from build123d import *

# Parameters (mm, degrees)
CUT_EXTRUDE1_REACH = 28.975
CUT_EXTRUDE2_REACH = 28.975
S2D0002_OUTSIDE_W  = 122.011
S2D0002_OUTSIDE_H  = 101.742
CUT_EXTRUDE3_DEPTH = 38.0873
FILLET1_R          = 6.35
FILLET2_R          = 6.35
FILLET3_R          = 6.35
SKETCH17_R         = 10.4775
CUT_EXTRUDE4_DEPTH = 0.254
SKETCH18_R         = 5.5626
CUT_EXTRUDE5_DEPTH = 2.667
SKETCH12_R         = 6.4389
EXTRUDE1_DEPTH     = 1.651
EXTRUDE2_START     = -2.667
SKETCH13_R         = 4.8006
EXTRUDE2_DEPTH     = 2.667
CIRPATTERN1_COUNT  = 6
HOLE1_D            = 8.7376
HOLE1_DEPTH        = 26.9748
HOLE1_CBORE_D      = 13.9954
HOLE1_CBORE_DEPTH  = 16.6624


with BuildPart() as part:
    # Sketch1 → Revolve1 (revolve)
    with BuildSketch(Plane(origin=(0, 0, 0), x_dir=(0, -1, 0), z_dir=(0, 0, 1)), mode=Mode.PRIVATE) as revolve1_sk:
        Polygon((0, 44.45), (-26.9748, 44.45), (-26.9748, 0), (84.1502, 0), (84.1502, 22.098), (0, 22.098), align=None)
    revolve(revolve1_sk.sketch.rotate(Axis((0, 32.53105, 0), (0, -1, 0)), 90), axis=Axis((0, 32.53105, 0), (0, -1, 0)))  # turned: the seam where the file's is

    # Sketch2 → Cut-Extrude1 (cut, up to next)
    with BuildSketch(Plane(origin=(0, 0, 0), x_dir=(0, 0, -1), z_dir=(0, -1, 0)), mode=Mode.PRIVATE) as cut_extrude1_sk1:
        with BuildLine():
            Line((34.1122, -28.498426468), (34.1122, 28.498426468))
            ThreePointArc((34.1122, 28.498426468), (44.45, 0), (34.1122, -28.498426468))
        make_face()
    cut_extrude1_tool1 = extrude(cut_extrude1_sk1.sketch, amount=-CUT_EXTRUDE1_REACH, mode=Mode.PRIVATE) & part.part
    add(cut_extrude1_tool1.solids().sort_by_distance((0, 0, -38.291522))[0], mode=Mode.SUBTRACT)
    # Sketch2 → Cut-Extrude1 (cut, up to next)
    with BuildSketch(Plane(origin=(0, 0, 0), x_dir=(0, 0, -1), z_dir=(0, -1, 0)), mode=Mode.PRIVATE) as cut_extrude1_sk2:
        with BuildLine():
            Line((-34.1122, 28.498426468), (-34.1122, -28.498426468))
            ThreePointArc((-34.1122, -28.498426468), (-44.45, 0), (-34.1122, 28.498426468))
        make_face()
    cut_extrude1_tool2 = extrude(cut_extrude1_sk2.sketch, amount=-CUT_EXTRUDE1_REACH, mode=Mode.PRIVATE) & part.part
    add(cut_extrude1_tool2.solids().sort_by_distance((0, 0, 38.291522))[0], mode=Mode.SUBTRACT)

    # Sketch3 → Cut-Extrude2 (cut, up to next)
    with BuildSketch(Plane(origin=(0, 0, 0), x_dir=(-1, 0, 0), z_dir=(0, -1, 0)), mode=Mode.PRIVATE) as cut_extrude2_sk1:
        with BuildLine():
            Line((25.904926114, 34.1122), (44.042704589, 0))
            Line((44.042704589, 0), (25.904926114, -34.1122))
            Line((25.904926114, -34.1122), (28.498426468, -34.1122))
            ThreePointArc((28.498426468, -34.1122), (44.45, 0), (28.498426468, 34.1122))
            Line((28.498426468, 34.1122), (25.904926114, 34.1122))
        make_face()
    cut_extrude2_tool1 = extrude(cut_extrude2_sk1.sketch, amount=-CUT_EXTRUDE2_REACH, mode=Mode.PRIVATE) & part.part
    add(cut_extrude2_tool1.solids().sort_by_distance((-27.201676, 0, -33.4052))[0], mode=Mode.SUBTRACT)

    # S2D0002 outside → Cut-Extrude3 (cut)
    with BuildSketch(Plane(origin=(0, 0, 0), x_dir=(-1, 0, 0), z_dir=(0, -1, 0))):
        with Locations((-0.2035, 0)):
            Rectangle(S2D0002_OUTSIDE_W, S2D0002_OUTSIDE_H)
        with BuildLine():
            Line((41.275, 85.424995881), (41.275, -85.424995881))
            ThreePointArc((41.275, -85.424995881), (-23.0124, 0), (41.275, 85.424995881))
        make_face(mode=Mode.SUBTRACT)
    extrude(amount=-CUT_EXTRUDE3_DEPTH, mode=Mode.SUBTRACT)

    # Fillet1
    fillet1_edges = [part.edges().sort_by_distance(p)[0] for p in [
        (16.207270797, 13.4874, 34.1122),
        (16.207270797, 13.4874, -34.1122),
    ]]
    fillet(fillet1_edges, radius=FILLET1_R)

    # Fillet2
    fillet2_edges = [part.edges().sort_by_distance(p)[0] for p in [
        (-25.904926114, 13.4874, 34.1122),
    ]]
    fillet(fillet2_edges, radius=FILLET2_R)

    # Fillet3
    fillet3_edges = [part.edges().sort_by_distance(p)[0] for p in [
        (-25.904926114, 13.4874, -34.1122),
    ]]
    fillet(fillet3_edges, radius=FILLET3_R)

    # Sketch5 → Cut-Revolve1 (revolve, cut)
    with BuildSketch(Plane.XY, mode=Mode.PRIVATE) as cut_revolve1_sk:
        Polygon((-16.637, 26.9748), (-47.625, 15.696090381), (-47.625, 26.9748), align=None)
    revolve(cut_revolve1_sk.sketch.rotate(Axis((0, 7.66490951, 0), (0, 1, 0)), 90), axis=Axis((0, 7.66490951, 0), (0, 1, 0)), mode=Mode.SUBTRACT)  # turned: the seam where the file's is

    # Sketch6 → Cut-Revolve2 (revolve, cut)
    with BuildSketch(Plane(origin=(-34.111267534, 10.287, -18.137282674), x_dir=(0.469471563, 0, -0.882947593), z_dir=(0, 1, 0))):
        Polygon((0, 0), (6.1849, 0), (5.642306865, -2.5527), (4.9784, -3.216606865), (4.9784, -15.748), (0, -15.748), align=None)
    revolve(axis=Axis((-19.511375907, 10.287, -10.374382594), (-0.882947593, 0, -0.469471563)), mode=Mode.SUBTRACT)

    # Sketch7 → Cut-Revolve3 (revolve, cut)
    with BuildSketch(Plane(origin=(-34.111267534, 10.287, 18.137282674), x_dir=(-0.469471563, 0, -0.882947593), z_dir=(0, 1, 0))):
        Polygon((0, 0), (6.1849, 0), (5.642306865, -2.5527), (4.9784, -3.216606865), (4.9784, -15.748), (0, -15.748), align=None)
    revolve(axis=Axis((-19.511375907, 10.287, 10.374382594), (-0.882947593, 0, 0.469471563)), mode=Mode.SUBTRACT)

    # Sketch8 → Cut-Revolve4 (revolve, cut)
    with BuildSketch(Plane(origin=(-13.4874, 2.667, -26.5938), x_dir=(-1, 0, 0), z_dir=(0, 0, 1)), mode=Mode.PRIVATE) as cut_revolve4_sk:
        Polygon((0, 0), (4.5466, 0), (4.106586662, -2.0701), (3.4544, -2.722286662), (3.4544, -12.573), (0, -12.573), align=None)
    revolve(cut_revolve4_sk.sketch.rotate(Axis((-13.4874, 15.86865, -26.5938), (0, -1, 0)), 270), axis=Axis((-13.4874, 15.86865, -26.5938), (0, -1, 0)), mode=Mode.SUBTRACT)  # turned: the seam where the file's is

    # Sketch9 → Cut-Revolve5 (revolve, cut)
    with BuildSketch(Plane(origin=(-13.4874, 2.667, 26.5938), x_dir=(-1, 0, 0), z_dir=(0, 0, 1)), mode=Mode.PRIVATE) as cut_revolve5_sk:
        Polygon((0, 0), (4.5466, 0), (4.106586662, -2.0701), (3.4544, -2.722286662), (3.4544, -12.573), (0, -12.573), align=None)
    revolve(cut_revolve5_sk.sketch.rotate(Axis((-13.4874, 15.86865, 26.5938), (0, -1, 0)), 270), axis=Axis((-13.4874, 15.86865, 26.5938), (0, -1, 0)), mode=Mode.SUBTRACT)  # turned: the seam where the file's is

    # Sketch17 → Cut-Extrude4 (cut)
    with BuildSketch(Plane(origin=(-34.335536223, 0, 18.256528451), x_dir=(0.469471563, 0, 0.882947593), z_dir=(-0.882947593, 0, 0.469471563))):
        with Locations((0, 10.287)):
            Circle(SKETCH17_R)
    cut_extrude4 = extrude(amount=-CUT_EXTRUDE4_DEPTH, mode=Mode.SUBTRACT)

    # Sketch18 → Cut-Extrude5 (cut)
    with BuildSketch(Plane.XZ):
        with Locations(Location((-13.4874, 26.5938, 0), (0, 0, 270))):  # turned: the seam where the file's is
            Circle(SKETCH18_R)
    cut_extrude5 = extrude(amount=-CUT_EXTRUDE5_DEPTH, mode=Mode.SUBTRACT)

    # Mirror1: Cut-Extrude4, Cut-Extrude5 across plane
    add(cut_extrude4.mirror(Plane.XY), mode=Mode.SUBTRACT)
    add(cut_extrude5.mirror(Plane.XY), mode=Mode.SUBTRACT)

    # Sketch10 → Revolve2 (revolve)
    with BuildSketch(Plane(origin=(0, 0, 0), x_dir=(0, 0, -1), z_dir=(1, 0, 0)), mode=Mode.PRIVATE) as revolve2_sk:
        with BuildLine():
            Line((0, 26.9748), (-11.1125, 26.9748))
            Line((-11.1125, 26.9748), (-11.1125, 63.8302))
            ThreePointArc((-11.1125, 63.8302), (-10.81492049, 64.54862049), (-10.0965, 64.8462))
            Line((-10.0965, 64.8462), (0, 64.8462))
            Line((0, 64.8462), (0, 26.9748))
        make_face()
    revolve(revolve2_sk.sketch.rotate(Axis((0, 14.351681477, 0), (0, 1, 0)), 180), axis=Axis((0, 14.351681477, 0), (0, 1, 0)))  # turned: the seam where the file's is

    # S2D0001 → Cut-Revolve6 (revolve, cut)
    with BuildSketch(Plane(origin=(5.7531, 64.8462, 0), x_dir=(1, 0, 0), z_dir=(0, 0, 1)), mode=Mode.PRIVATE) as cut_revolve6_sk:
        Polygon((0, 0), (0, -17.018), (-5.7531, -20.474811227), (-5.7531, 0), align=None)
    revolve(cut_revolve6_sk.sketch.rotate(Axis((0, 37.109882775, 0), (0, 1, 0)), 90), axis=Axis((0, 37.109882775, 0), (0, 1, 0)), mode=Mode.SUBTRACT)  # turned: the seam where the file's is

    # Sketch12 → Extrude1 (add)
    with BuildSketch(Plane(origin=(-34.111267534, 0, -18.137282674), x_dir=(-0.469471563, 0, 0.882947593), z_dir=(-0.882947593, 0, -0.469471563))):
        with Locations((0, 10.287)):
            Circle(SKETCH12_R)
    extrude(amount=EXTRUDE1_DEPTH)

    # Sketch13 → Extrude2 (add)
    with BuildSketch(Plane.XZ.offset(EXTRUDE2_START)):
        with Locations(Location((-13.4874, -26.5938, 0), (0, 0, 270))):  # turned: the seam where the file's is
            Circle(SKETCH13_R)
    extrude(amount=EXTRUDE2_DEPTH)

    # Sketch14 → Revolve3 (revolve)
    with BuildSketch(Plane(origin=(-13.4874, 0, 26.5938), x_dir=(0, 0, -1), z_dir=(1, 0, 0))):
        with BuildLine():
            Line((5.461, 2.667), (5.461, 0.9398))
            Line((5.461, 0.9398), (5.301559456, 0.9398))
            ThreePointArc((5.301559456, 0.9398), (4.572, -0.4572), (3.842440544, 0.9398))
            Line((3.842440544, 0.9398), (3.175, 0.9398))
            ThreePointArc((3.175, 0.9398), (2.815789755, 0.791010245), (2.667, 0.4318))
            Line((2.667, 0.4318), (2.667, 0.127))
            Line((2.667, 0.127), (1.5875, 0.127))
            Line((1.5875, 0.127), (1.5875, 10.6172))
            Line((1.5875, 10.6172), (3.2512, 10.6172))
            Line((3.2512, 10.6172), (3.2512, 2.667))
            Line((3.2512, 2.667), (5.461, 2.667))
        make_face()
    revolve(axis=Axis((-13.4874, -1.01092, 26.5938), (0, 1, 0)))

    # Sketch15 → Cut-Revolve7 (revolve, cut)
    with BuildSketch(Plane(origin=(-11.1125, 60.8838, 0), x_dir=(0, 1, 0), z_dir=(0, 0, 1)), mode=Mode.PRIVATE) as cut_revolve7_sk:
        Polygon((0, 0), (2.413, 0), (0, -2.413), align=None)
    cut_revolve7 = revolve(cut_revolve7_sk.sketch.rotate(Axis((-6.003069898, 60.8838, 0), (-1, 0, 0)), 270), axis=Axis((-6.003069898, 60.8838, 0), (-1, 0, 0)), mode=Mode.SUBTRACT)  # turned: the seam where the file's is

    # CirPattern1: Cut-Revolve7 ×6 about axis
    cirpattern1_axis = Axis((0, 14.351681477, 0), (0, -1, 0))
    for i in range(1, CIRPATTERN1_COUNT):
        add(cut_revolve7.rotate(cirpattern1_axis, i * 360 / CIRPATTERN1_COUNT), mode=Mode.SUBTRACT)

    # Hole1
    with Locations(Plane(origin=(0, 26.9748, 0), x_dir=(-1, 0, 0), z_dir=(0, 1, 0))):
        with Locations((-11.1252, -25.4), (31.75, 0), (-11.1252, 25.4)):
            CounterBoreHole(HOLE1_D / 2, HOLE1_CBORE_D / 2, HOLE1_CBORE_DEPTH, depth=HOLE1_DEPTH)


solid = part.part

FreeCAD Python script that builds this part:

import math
import FreeCAD as App
import Part
import Sketcher
from FreeCAD import Vector
Q = App.Units.Quantity


def edges_at(feature, points):
    """Names of the edges that pass closest to the given points."""
    edges = feature.Shape.Edges
    near = lambda p: min(range(len(edges)), key=lambda i: edges[i].distToShape(Part.Vertex(*p))[0])
    return sorted({f"Edge{near(p) + 1}" for p in points})


def add_polygon(sketch, points):
    """Adds a closed chain of lines whose ends are joined by coincident constraints."""
    first, n = sketch.GeometryCount, len(points)
    for a, b in zip(points, points[1:] + points[:1]):
        sketch.addGeometry(Part.LineSegment(App.Vector(*a, 0), App.Vector(*b, 0)), False)
    for i in range(n):
        sketch.addConstraint(Sketcher.Constraint("Coincident", first + i, 2, first + (i + 1) % n, 1))

doc = App.newDocument("Part")
body = doc.addObject("PartDesign::Body", "Body")

# Sketch on XY plane
sketch1 = doc.addObject("Sketcher::SketchObject", "Sketch")
body.addObject(sketch1)
sketch1.AttachmentSupport = (doc.XY_Plane, [""])
sketch1.MapMode = "FlatFace"
add_polygon(sketch1, [(44, 0), (44, 27), (0, 27), (0, -84), (22, -84), (22, 0)])  # lines 0-5
sketch1.addConstraint(Sketcher.Constraint("Vertical", 0))
sketch1.addConstraint(Sketcher.Constraint("Horizontal", 1))
sketch1.addConstraint(Sketcher.Constraint("Vertical", 2))
sketch1.addConstraint(Sketcher.Constraint("Horizontal", 3))
sketch1.addConstraint(Sketcher.Constraint("Vertical", 4))
sketch1.addConstraint(Sketcher.Constraint("Horizontal", 5))
sketch1.addConstraint(Sketcher.Constraint("PointOnObject", 1, 2, -2))
sketch1.addConstraint(Sketcher.Constraint("PointOnObject", 4, 2, -1))
sketch1.addConstraint(Sketcher.Constraint("DistanceX", 1, 2, 1, 1, Q("1.75 in")))
sketch1.addConstraint(Sketcher.Constraint("DistanceX", 3, 1, 3, 2, Q("0.87 in")))
sketch1.addConstraint(Sketcher.Constraint("DistanceY", 0, 1, 0, 2, Q("1.062 in")))
sketch1.addConstraint(Sketcher.Constraint("DistanceY", 2, 2, 2, 1, Q("4.375 in")))
revolution = doc.addObject("PartDesign::Revolution", "Revolution")
body.addObject(revolution)
revolution.Profile = sketch1
revolution.ReferenceAxis = (sketch1, ["V_Axis"])
revolution.Angle = 360

# Sketch on XZ plane
sketch2 = doc.addObject("Sketcher::SketchObject", "Sketch001")
body.addObject(sketch2)
sketch2.AttachmentSupport = (doc.XZ_Plane, [""])
sketch2.MapMode = "FlatFace"
sketch2.addGeometry(Part.LineSegment(Vector(28, -34, 0), Vector(-28, -34, 0)), False)
sketch2.addGeometry(Part.ArcOfCircle(Part.Circle(Vector(0, 0, 0), Vector(0, 0, 1), 44), math.radians(-130), math.radians(-50)), False)
sketch2.addConstraint(Sketcher.Constraint("Coincident", 0, 1, 1, 2))
sketch2.addConstraint(Sketcher.Constraint("Coincident", 1, 1, 0, 2))
sketch2.addConstraint(Sketcher.Constraint("Horizontal", 0))
sketch2.addConstraint(Sketcher.Constraint("Coincident", 1, 3, -1, 1))
sketch2.addConstraint(Sketcher.Constraint("Radius", 1, Q("1.75 in")))
sketch2.addConstraint(Sketcher.Constraint("DistanceY", 0, 1, -1, 1, Q("1.343 in")))
pocket1 = doc.addObject("PartDesign::Pocket", "Pocket")
body.addObject(pocket1)
pocket1.Profile = sketch2
pocket1.Type = "UpToFirst"

# Sketch on XZ plane
sketch3 = doc.addObject("Sketcher::SketchObject", "Sketch002")
body.addObject(sketch3)
sketch3.AttachmentSupport = (doc.XZ_Plane, [""])
sketch3.MapMode = "FlatFace"
sketch3.addGeometry(Part.LineSegment(Vector(-28, 34, 0), Vector(28, 34, 0)), False)
sketch3.addGeometry(Part.ArcOfCircle(Part.Circle(Vector(0, 0, 0), Vector(0, 0, 1), 44), math.radians(50), math.radians(130)), False)
sketch3.addConstraint(Sketcher.Constraint("Coincident", 0, 1, 1, 2))
sketch3.addConstraint(Sketcher.Constraint("Coincident", 1, 1, 0, 2))
sketch3.addConstraint(Sketcher.Constraint("Horizontal", 0))
sketch3.addConstraint(Sketcher.Constraint("Coincident", 1, 3, -1, 1))
sketch3.addConstraint(Sketcher.Constraint("Radius", 1, Q("1.75 in")))
sketch3.addConstraint(Sketcher.Constraint("DistanceY", -1, 1, 0, 1, Q("1.343 in")))
pocket2 = doc.addObject("PartDesign::Pocket", "Pocket001")
body.addObject(pocket2)
pocket2.Profile = sketch3
pocket2.Type = "UpToFirst"

# Sketch on XZ plane
sketch4 = doc.addObject("Sketcher::SketchObject", "Sketch003")
body.addObject(sketch4)
sketch4.AttachmentSupport = (doc.XZ_Plane, [""])
sketch4.MapMode = "FlatFace"
sketch4.addGeometry(Part.LineSegment(Vector(-25.9, -34.1, 0), Vector(-44, 0, 0)), False)
sketch4.addGeometry(Part.LineSegment(Vector(-44, 0, 0), Vector(-25.9, 34.1, 0)), False)
sketch4.addGeometry(Part.LineSegment(Vector(-25.9, 34.1, 0), Vector(-28.5, 34.1, 0)), False)
sketch4.addGeometry(Part.ArcOfCircle(Part.Circle(Vector(0, 0, 0), Vector(0, 0, 1), 44.5), math.radians(130), math.radians(230)), False)
sketch4.addGeometry(Part.LineSegment(Vector(-28.5, -34.1, 0), Vector(-25.9, -34.1, 0)), False)
sketch4.addConstraint(Sketcher.Constraint("Coincident", 0, 2, 1, 1))
sketch4.addConstraint(Sketcher.Constraint("Coincident", 1, 2, 2, 1))
sketch4.addConstraint(Sketcher.Constraint("Coincident", 2, 2, 3, 1))
sketch4.addConstraint(Sketcher.Constraint("Coincident", 3, 2, 4, 1))
sketch4.addConstraint(Sketcher.Constraint("Coincident", 4, 2, 0, 1))
sketch4.addConstraint(Sketcher.Constraint("Horizontal", 2))
sketch4.addConstraint(Sketcher.Constraint("Horizontal", 4))
sketch4.addConstraint(Sketcher.Constraint("Coincident", 3, 3, -1, 1))
sketch4.addConstraint(Sketcher.Constraint("Symmetric", 1, 2, 4, 2, -1))
sketch4.addConstraint(Sketcher.Constraint("PointOnObject", 0, 2, -1))
sketch4.addConstraint(Sketcher.Constraint("Radius", 3, Q("1.75 in")))
sketch4.addConstraint(Sketcher.Constraint("Angle", 0, Q("118 deg")))
sketch4.addConstraint(Sketcher.Constraint("DistanceY", -1, 1, 1, 2, Q("1.343 in")))
sketch4.addConstraint(Sketcher.Constraint("DistanceX", 2, 2, 2, 1, 2.5935))
pocket3 = doc.addObject("PartDesign::Pocket", "Pocket002")
body.addObject(pocket3)
pocket3.Profile = sketch4
pocket3.Type = "UpToFirst"

# Sketch on XZ plane
sketch5 = doc.addObject("Sketcher::SketchObject", "Sketch004")
body.addObject(sketch5)
sketch5.AttachmentSupport = (doc.XZ_Plane, [""])
sketch5.MapMode = "FlatFace"
sketch5.addGeometry(Part.LineSegment(Vector(61, -51, 0), Vector(61, 51, 0)), False)  # 0
sketch5.addGeometry(Part.LineSegment(Vector(61, 51, 0), Vector(7, 51, 0)), False)  # 1
sketch5.addGeometry(Part.ArcOfCircle(Part.Circle(Vector(-66, 0, 0), Vector(0, 0, 1), 89), math.radians(-35), math.radians(35)), False)  # 2
sketch5.addGeometry(Part.LineSegment(Vector(7, -51, 0), Vector(61, -51, 0)), False)  # 3
add_polygon(sketch5, [(-41, -51), (-41, 51), (-61, 51), (-61, -51)])  # lines 4-7
sketch5.addConstraint(Sketcher.Constraint("Coincident", 0, 2, 1, 1))
sketch5.addConstraint(Sketcher.Constraint("Coincident", 1, 2, 2, 2))
sketch5.addConstraint(Sketcher.Constraint("Coincident", 2, 1, 3, 1))
sketch5.addConstraint(Sketcher.Constraint("Coincident", 3, 2, 0, 1))
sketch5.addConstraint(Sketcher.Constraint("Vertical", 0))
sketch5.addConstraint(Sketcher.Constraint("Horizontal", 1))
sketch5.addConstraint(Sketcher.Constraint("Horizontal", 3))
sketch5.addConstraint(Sketcher.Constraint("Vertical", 4))
sketch5.addConstraint(Sketcher.Constraint("Horizontal", 5))
sketch5.addConstraint(Sketcher.Constraint("Vertical", 6))
sketch5.addConstraint(Sketcher.Constraint("Horizontal", 7))
sketch5.addConstraint(Sketcher.Constraint("Symmetric", 1, 2, 2, 1, -1))
sketch5.addConstraint(Sketcher.Constraint("Horizontal", 1, 2, 4, 2))
sketch5.addConstraint(Sketcher.Constraint("Horizontal", 3, 2, 6, 2))
sketch5.addConstraint(Sketcher.Constraint("Radius", 2, Q("3.5 in")))
sketch5.addConstraint(Sketcher.Constraint("DistanceX", 2, 3, -1, 1, Q("2.594 in")))
sketch5.addConstraint(Sketcher.Constraint("DistanceX", 4, 2, -1, 1, Q("1.625 in")))
sketch5.addConstraint(Sketcher.Constraint("DistanceX", 5, 2, 5, 1, 19.527))
sketch5.addConstraint(Sketcher.Constraint("DistanceY", 0, 1, 0, 2, 101.742))
sketch5.addConstraint(Sketcher.Constraint("DistanceX", -1, 1, 0, 2, 61.209))
pocket4 = doc.addObject("PartDesign::Pocket", "Pocket003")
body.addObject(pocket4)
pocket4.Profile = sketch5
pocket4.Length = Q("1.4995 in")
doc.recompute()

fillet = doc.addObject("PartDesign::Fillet", "Fillet")
body.addObject(fillet)
fillet.Base = (pocket4, edges_at(pocket4, [(16.207, 13.487, 34.112), (16.207, 13.487, -34.112)]))
fillet.Radius = Q("0.25 in")
doc.recompute()

fillet2 = doc.addObject("PartDesign::Fillet", "Fillet001")
body.addObject(fillet2)
fillet2.Base = (fillet, edges_at(fillet, [(-25.905, 13.487, 34.112)]))
fillet2.Radius = Q("0.25 in")
doc.recompute()

fillet3 = doc.addObject("PartDesign::Fillet", "Fillet002")
body.addObject(fillet3)
fillet3.Base = (fillet2, edges_at(fillet2, [(-25.905, 13.487, -34.112)]))
fillet3.Radius = Q("0.25 in")

# Sketch on XY plane
sketch6 = doc.addObject("Sketcher::SketchObject", "Sketch005")
body.addObject(sketch6)
sketch6.AttachmentSupport = (doc.XY_Plane, [""])
sketch6.MapMode = "FlatFace"
add_polygon(sketch6, [(-48, 16), (-17, 27), (-48, 27)])  # lines 0-2
sketch6.addConstraint(Sketcher.Constraint("Horizontal", 1))
sketch6.addConstraint(Sketcher.Constraint("Vertical", 2))
sketch6.addConstraint(Sketcher.Constraint("Angle", 0, Q("20 deg")))
sketch6.addConstraint(Sketcher.Constraint("DistanceX", 1, 2, 1, 1, Q("1.22 in")))
sketch6.addConstraint(Sketcher.Constraint("DistanceX", 0, 2, -1, 1, Q("0.655 in")))
sketch6.addConstraint(Sketcher.Constraint("DistanceY", -1, 1, 0, 2, Q("1.062 in")))
groove = doc.addObject("PartDesign::Groove", "Groove")
body.addObject(groove)
groove.Profile = sketch6
groove.ReferenceAxis = (sketch6, ["V_Axis"])
groove.Angle = 360

# Sketch on XZ plane
sketch7 = doc.addObject("Sketcher::SketchObject", "Sketch006")
body.addObject(sketch7)
sketch7.AttachmentSupport = (doc.XZ_Plane, [""])
sketch7.MapMode = "FlatFace"
sketch7.AttachmentOffset = App.Placement(Vector(0, 0, -0.405 * 25.4), App.Rotation())
add_polygon(sketch7, [(-31.2, -23.6), (-34.1, -18.1), (-20.2, -10.7), (-17.9, -15.1), (-28.9, -21), (-29.2, -21.9)])  # lines 0-5
sketch7.addGeometry(Part.LineSegment(Vector(-20.2, -10.7, 0), Vector(-34.1, -18.1, 0)), True)  # axis
sketch7.addConstraint(Sketcher.Constraint("Coincident", 6, 1, 1, 2))
sketch7.addConstraint(Sketcher.Constraint("Coincident", 6, 2, 0, 2))
sketch7.addConstraint(Sketcher.Constraint("Perpendicular", 0, 1))
sketch7.addConstraint(Sketcher.Constraint("Perpendicular", 1, 2))
sketch7.addConstraint(Sketcher.Constraint("Perpendicular", 2, 3))
sketch7.addConstraint(Sketcher.Constraint("Angle", 0, Q("118 deg")))
sketch7.addConstraint(Sketcher.Constraint("Angle", 4, Q("-107 deg")))
sketch7.addConstraint(Sketcher.Constraint("Angle", 5, Q("-140 deg")))
sketch7.addConstraint(Sketcher.Constraint("Distance", 1, Q("0.62 in")))
sketch7.addConstraint(Sketcher.Constraint("Distance", 2, Q("0.196 in")))
sketch7.addConstraint(Sketcher.Constraint("Distance", 0, Q("0.2435 in")))
sketch7.addConstraint(Sketcher.Constraint("DistanceY", 3, 2, 1, 2, 10.278799))
sketch7.addConstraint(Sketcher.Constraint("DistanceX", 1, 2, -1, 1, 20.206609))
sketch7.addConstraint(Sketcher.Constraint("DistanceY", 2, 2, -1, 1, 15.139711))
groove2 = doc.addObject("PartDesign::Groove", "Groove001")
body.addObject(groove2)
groove2.Profile = sketch7
groove2.ReferenceAxis = (sketch7, ["Axis0"])
groove2.Angle = 360

# Sketch on XZ plane
sketch8 = doc.addObject("Sketcher::SketchObject", "Sketch007")
body.addObject(sketch8)
sketch8.AttachmentSupport = (doc.XZ_Plane, [""])
sketch8.MapMode = "FlatFace"
sketch8.AttachmentOffset = App.Placement(Vector(0, 0, -0.405 * 25.4), App.Rotation())
add_polygon(sketch8, [(-37, 12.7), (-34.1, 18.1), (-20.2, 10.7), (-22.5, 6.3), (-33.6, 12.2), (-34.5, 12)])  # lines 0-5
sketch8.addGeometry(Part.LineSegment(Vector(-20.2, 10.7, 0), Vector(-34.1, 18.1, 0)), True)  # axis
sketch8.addConstraint(Sketcher.Constraint("Coincident", 6, 1, 1, 2))
sketch8.addConstraint(Sketcher.Constraint("Coincident", 6, 2, 0, 2))
sketch8.addConstraint(Sketcher.Constraint("Perpendicular", 0, 1))
sketch8.addConstraint(Sketcher.Constraint("Perpendicular", 1, 2))
sketch8.addConstraint(Sketcher.Constraint("Perpendicular", 2, 3))
sketch8.addConstraint(Sketcher.Constraint("Angle", 0, Q("62 deg")))
sketch8.addConstraint(Sketcher.Constraint("Angle", 4, Q("-163 deg")))
sketch8.addConstraint(Sketcher.Constraint("Angle", 5, Q("164 deg")))
sketch8.addConstraint(Sketcher.Constraint("Distance", 1, Q("0.62 in")))
sketch8.addConstraint(Sketcher.Constraint("Distance", 2, Q("0.196 in")))
sketch8.addConstraint(Sketcher.Constraint("Distance", 0, Q("0.2435 in")))
sketch8.addConstraint(Sketcher.Constraint("DistanceY", -1, 1, 4, 2, 11.957001))
sketch8.addConstraint(Sketcher.Constraint("Distance", 5, 2.609729))
sketch8.addConstraint(Sketcher.Constraint("DistanceX", 1, 2, -1, 1, 20.206609))
groove3 = doc.addObject("PartDesign::Groove", "Groove002")
body.addObject(groove3)
groove3.Profile = sketch8
groove3.ReferenceAxis = (sketch8, ["Axis0"])
groove3.Angle = 360

# Sketch on XY plane
sketch9 = doc.addObject("Sketcher::SketchObject", "Sketch008")
body.addObject(sketch9)
sketch9.AttachmentSupport = (doc.XY_Plane, [""])
sketch9.MapMode = "FlatFace"
sketch9.AttachmentOffset = App.Placement(Vector(0, 0, -1.047 * 25.4), App.Rotation())
add_polygon(sketch9, [(-18, 2.7), (-13.5, 2.7), (-13.5, 15.2), (-16.9, 15.2), (-16.9, 5.4), (-17.6, 4.7)])  # lines 0-5
sketch9.addGeometry(Part.LineSegment(Vector(-13.5, 15.2, 0), Vector(-13.5, 2.7, 0)), True)  # axis
sketch9.addConstraint(Sketcher.Constraint("Horizontal", 0))
sketch9.addConstraint(Sketcher.Constraint("Vertical", 1))
sketch9.addConstraint(Sketcher.Constraint("Horizontal", 2))
sketch9.addConstraint(Sketcher.Constraint("Vertical", 3))
sketch9.addConstraint(Sketcher.Constraint("Vertical", 6))
sketch9.addConstraint(Sketcher.Constraint("Coincident", 6, 1, 1, 2))
sketch9.addConstraint(Sketcher.Constraint("Horizontal", 5, 2, 6, 2))
sketch9.addConstraint(Sketcher.Constraint("Angle", 4, Q("-135 deg")))
sketch9.addConstraint(Sketcher.Constraint("Angle", 5, Q("-102 deg")))
sketch9.addConstraint(Sketcher.Constraint("DistanceY", -1, 1, 1, 2, Q("0.6 in")))
sketch9.addConstraint(Sketcher.Constraint("DistanceX", 0, 1, 0, 2, Q("0.179 in")))
sketch9.addConstraint(Sketcher.Constraint("DistanceX", 2, 2, 2, 1, Q("0.136 in")))
sketch9.addConstraint(Sketcher.Constraint("DistanceY", 1, 1, 1, 2, Q("0.495 in")))
sketch9.addConstraint(Sketcher.Constraint("DistanceX", 5, 2, -1, 1, Q("0.71 in")))
sketch9.addConstraint(Sketcher.Constraint("DistanceY", -1, 1, 4, 2, Q("0.1865 in")))
groove4 = doc.addObject("PartDesign::Groove", "Groove003")
body.addObject(groove4)
groove4.Profile = sketch9
groove4.ReferenceAxis = (sketch9, ["Axis0"])
groove4.Angle = 360

# Sketch on XY plane
sketch10 = doc.addObject("Sketcher::SketchObject", "Sketch009")
body.addObject(sketch10)
sketch10.AttachmentSupport = (doc.XY_Plane, [""])
sketch10.MapMode = "FlatFace"
sketch10.AttachmentOffset = App.Placement(Vector(0, 0, 1.047 * 25.4), App.Rotation())
add_polygon(sketch10, [(-18, 2.7), (-13.5, 2.7), (-13.5, 15.2), (-16.9, 15.2), (-16.9, 5.4), (-17.6, 4.7)])  # lines 0-5
sketch10.addGeometry(Part.LineSegment(Vector(-13.5, 15.2, 0), Vector(-13.5, 2.7, 0)), True)  # axis
sketch10.addConstraint(Sketcher.Constraint("Horizontal", 0))
sketch10.addConstraint(Sketcher.Constraint("Vertical", 1))
sketch10.addConstraint(Sketcher.Constraint("Horizontal", 2))
sketch10.addConstraint(Sketcher.Constraint("Vertical", 3))
sketch10.addConstraint(Sketcher.Constraint("Vertical", 6))
sketch10.addConstraint(Sketcher.Constraint("Coincident", 6, 1, 1, 2))
sketch10.addConstraint(Sketcher.Constraint("Horizontal", 5, 2, 6, 2))
sketch10.addConstraint(Sketcher.Constraint("Angle", 4, Q("-135 deg")))
sketch10.addConstraint(Sketcher.Constraint("Angle", 5, Q("-102 deg")))
sketch10.addConstraint(Sketcher.Constraint("DistanceY", -1, 1, 1, 2, Q("0.6 in")))
sketch10.addConstraint(Sketcher.Constraint("DistanceX", 0, 1, 0, 2, Q("0.179 in")))
sketch10.addConstraint(Sketcher.Constraint("DistanceX", 2, 2, 2, 1, Q("0.136 in")))
sketch10.addConstraint(Sketcher.Constraint("DistanceY", 1, 1, 1, 2, Q("0.495 in")))
sketch10.addConstraint(Sketcher.Constraint("DistanceX", 5, 2, -1, 1, Q("0.71 in")))
sketch10.addConstraint(Sketcher.Constraint("DistanceY", -1, 1, 4, 2, Q("0.1865 in")))
groove5 = doc.addObject("PartDesign::Groove", "Groove004")
body.addObject(groove5)
groove5.Profile = sketch10
groove5.ReferenceAxis = (sketch10, ["Axis0"])
groove5.Angle = 360

# Sketch on an angled plane
sketch11 = doc.addObject("Sketcher::SketchObject", "Sketch010")
body.addObject(sketch11)
sketch11.Placement = App.Placement(Vector(-34.335536, 0, 18.256528), App.Rotation(Vector(0.469471563, 0, 0.882947593), Vector(0, 1, 0), Vector(-0.882947593, 0, 0.469471563), "ZXY"))
sketch11.addGeometry(Part.Circle(Vector(0, 10, 0), Vector(0, 0, 1), 10), False)
sketch11.addConstraint(Sketcher.Constraint("PointOnObject", 0, 3, -2))
sketch11.addConstraint(Sketcher.Constraint("Diameter", 0, Q("0.825 in")))
sketch11.addConstraint(Sketcher.Constraint("DistanceY", -1, 1, 0, 3, Q("0.405 in")))
pocket5 = doc.addObject("PartDesign::Pocket", "Pocket004")
body.addObject(pocket5)
pocket5.Profile = sketch11
pocket5.Length = Q("0.01 in")

# Sketch on XZ plane
sketch12 = doc.addObject("Sketcher::SketchObject", "Sketch011")
body.addObject(sketch12)
sketch12.AttachmentSupport = (doc.XZ_Plane, [""])
sketch12.MapMode = "FlatFace"
sketch12.addGeometry(Part.Circle(Vector(-13, 27, 0), Vector(0, 0, 1), 6), False)
sketch12.addConstraint(Sketcher.Constraint("Diameter", 0, Q("0.438 in")))
sketch12.addConstraint(Sketcher.Constraint("DistanceX", 0, 3, -1, 1, Q("0.531 in")))
sketch12.addConstraint(Sketcher.Constraint("DistanceY", -1, 1, 0, 3, Q("1.047 in")))
pocket6 = doc.addObject("PartDesign::Pocket", "Pocket005")
body.addObject(pocket6)
pocket6.Profile = sketch12
pocket6.Length = Q("0.105 in")
doc.recompute()

mirrored = doc.addObject("PartDesign::Mirrored", "Mirrored")
body.addObject(mirrored)
mirrored.Originals = [pocket5, pocket6]
mirrored.MirrorPlane = (doc.XY_Plane, [""])
body.Tip = mirrored

# Sketch on YZ plane
sketch13 = doc.addObject("Sketcher::SketchObject", "Sketch012")
body.addObject(sketch13)
sketch13.AttachmentSupport = (doc.YZ_Plane, [""])
sketch13.MapMode = "FlatFace"
sketch13.addGeometry(Part.LineSegment(Vector(27, 11.1, 0), Vector(27, 0, 0)), False)
sketch13.addGeometry(Part.LineSegment(Vector(27, 0, 0), Vector(64.8, 0, 0)), False)
sketch13.addGeometry(Part.LineSegment(Vector(64.8, 0, 0), Vector(64.8, 10.1, 0)), False)
sketch13.addGeometry(Part.ArcOfCircle(Part.Circle(Vector(63.8, 10.1, 0), Vector(0, 0, 1), 1), math.radians(0), math.radians(90)), False)
sketch13.addGeometry(Part.LineSegment(Vector(63.8, 11.1, 0), Vector(27, 11.1, 0)), False)
sketch13.addConstraint(Sketcher.Constraint("Coincident", 0, 2, 1, 1))
sketch13.addConstraint(Sketcher.Constraint("Coincident", 1, 2, 2, 1))
sketch13.addConstraint(Sketcher.Constraint("Tangent", 2, 2, 3, 1))
sketch13.addConstraint(Sketcher.Constraint("Tangent", 3, 2, 4, 1))
sketch13.addConstraint(Sketcher.Constraint("Coincident", 4, 2, 0, 1))
sketch13.addConstraint(Sketcher.Constraint("Vertical", 0))
sketch13.addConstraint(Sketcher.Constraint("Horizontal", 1))
sketch13.addConstraint(Sketcher.Constraint("Vertical", 2))
sketch13.addConstraint(Sketcher.Constraint("Horizontal", 4))
sketch13.addConstraint(Sketcher.Constraint("PointOnObject", 0, 2, -1))
sketch13.addConstraint(Sketcher.Constraint("Radius", 3, Q("0.04 in")))
sketch13.addConstraint(Sketcher.Constraint("DistanceX", 1, 1, 1, 2, Q("1.491 in")))
sketch13.addConstraint(Sketcher.Constraint("DistanceY", 0, 2, 0, 1, Q("0.4375 in")))
sketch13.addConstraint(Sketcher.Constraint("DistanceX", -1, 1, 3, 3, Q("2.513 in")))
revolution2 = doc.addObject("PartDesign::Revolution", "Revolution001")
body.addObject(revolution2)
revolution2.Profile = sketch13
revolution2.ReferenceAxis = (sketch13, ["H_Axis"])
revolution2.Angle = 360

# Sketch on XY plane
sketch14 = doc.addObject("Sketcher::SketchObject", "Sketch013")
body.addObject(sketch14)
sketch14.AttachmentSupport = (doc.XY_Plane, [""])
sketch14.MapMode = "FlatFace"
add_polygon(sketch14, [(6, 48), (6, 65), (0, 65), (0, 44)])  # lines 0-3
sketch14.addConstraint(Sketcher.Constraint("Vertical", 0))
sketch14.addConstraint(Sketcher.Constraint("Horizontal", 1))
sketch14.addConstraint(Sketcher.Constraint("Vertical", 2))
sketch14.addConstraint(Sketcher.Constraint("PointOnObject", 1, 2, -2))
sketch14.addConstraint(Sketcher.Constraint("Angle", 3, Q("31 deg")))
sketch14.addConstraint(Sketcher.Constraint("DistanceY", 0, 1, 0, 2, Q("0.67 in")))
sketch14.addConstraint(Sketcher.Constraint("DistanceX", 1, 2, 1, 1, Q("0.2265 in")))
sketch14.addConstraint(Sketcher.Constraint("DistanceY", -1, 1, 0, 2, Q("2.553 in")))
groove6 = doc.addObject("PartDesign::Groove", "Groove005")
body.addObject(groove6)
groove6.Profile = sketch14
groove6.ReferenceAxis = (sketch14, ["V_Axis"])
groove6.Angle = 360

# Sketch on an angled plane
sketch15 = doc.addObject("Sketcher::SketchObject", "Sketch014")
body.addObject(sketch15)
sketch15.Placement = App.Placement(Vector(-34.111268, 0, -18.137283), App.Rotation(Vector(-0.469471563, 0, 0.882947593), Vector(0, 1, 0), Vector(-0.882947593, 0, -0.469471563), "ZXY"))
sketch15.addGeometry(Part.Circle(Vector(0, 10, 0), Vector(0, 0, 1), 6), False)
sketch15.addConstraint(Sketcher.Constraint("PointOnObject", 0, 3, -2))
sketch15.addConstraint(Sketcher.Constraint("Diameter", 0, Q("0.507 in")))
sketch15.addConstraint(Sketcher.Constraint("DistanceY", -1, 1, 0, 3, Q("0.405 in")))
pad1 = doc.addObject("PartDesign::Pad", "Pad")
body.addObject(pad1)
pad1.Profile = sketch15
pad1.Length = Q("0.065 in")

# Sketch on XZ plane
sketch16 = doc.addObject("Sketcher::SketchObject", "Sketch015")
body.addObject(sketch16)
sketch16.AttachmentSupport = (doc.XZ_Plane, [""])
sketch16.MapMode = "FlatFace"
sketch16.AttachmentOffset = App.Placement(Vector(0, 0, -0.105 * 25.4), App.Rotation())
sketch16.addGeometry(Part.Circle(Vector(-13.5, -26.6, 0), Vector(0, 0, 1), 4.8), False)
sketch16.addConstraint(Sketcher.Constraint("Diameter", 0, Q("0.378 in")))
sketch16.addConstraint(Sketcher.Constraint("DistanceX", 0, 3, -1, 1, Q("0.531 in")))
sketch16.addConstraint(Sketcher.Constraint("DistanceY", 0, 3, -1, 1, Q("1.047 in")))
pad2 = doc.addObject("PartDesign::Pad", "Pad001")
body.addObject(pad2)
pad2.Profile = sketch16
pad2.Length = Q("0.105 in")

# Sketch on YZ plane
sketch17 = doc.addObject("Sketcher::SketchObject", "Sketch016")
body.addObject(sketch17)
sketch17.AttachmentSupport = (doc.YZ_Plane, [""])
sketch17.MapMode = "FlatFace"
sketch17.AttachmentOffset = App.Placement(Vector(0, 0, -0.531 * 25.4), App.Rotation())
sketch17.addGeometry(Part.LineSegment(Vector(0.94, 21.13, 0), Vector(2.67, 21.13, 0)), False)
sketch17.addGeometry(Part.LineSegment(Vector(2.67, 21.13, 0), Vector(2.67, 23.34, 0)), False)
sketch17.addGeometry(Part.LineSegment(Vector(2.67, 23.34, 0), Vector(10.62, 23.34, 0)), False)
sketch17.addGeometry(Part.LineSegment(Vector(10.62, 23.34, 0), Vector(10.62, 25.01, 0)), False)
sketch17.addGeometry(Part.LineSegment(Vector(10.62, 25.01, 0), Vector(0.13, 25.01, 0)), False)
sketch17.addGeometry(Part.LineSegment(Vector(0.13, 25.01, 0), Vector(0.13, 23.93, 0)), False)
sketch17.addGeometry(Part.LineSegment(Vector(0.13, 23.93, 0), Vector(0.43, 23.93, 0)), False)
sketch17.addGeometry(Part.ArcOfCircle(Part.Circle(Vector(0.43, 23.42, 0), Vector(0, 0, 1), 0.51), math.radians(0), math.radians(90)), False)
sketch17.addGeometry(Part.LineSegment(Vector(0.94, 23.42, 0), Vector(0.94, 22.75, 0)), False)
sketch17.addGeometry(Part.ArcOfCircle(Part.Circle(Vector(0.43, 22.02, 0), Vector(0, 0, 1), 0.89), math.radians(55), math.radians(305)), False)
sketch17.addGeometry(Part.LineSegment(Vector(0.94, 21.29, 0), Vector(0.94, 21.13, 0)), False)
sketch17.addGeometry(Part.LineSegment(Vector(0.13, 26.59, 0), Vector(10.62, 26.59, 0)), True)  # axis
sketch17.addConstraint(Sketcher.Constraint("Coincident", 0, 2, 1, 1))
sketch17.addConstraint(Sketcher.Constraint("Coincident", 1, 2, 2, 1))
sketch17.addConstraint(Sketcher.Constraint("Coincident", 2, 2, 3, 1))
sketch17.addConstraint(Sketcher.Constraint("Coincident", 3, 2, 4, 1))
sketch17.addConstraint(Sketcher.Constraint("Coincident", 4, 2, 5, 1))
sketch17.addConstraint(Sketcher.Constraint("Coincident", 5, 2, 6, 1))
sketch17.addConstraint(Sketcher.Constraint("Tangent", 6, 2, 7, 2))
sketch17.addConstraint(Sketcher.Constraint("Tangent", 7, 1, 8, 1))
sketch17.addConstraint(Sketcher.Constraint("Coincident", 8, 2, 9, 1))
sketch17.addConstraint(Sketcher.Constraint("Coincident", 9, 2, 10, 1))
sketch17.addConstraint(Sketcher.Constraint("Coincident", 10, 2, 0, 1))
sketch17.addConstraint(Sketcher.Constraint("Horizontal", 0))
sketch17.addConstraint(Sketcher.Constraint("Vertical", 1))
sketch17.addConstraint(Sketcher.Constraint("Horizontal", 2))
sketch17.addConstraint(Sketcher.Constraint("Vertical", 3))
sketch17.addConstraint(Sketcher.Constraint("Horizontal", 4))
sketch17.addConstraint(Sketcher.Constraint("Vertical", 5))
sketch17.addConstraint(Sketcher.Constraint("Horizontal", 6))
sketch17.addConstraint(Sketcher.Constraint("Vertical", 8))
sketch17.addConstraint(Sketcher.Constraint("Vertical", 10))
sketch17.addConstraint(Sketcher.Constraint("Horizontal", 11))
sketch17.addConstraint(Sketcher.Constraint("Vertical", 7, 3, 9, 3))
sketch17.addConstraint(Sketcher.Constraint("Vertical", 8, 2, 9, 2))
sketch17.addConstraint(Sketcher.Constraint("Vertical", 5, 2, 11, 1))
sketch17.addConstraint(Sketcher.Constraint("Vertical", 3, 2, 11, 2))
sketch17.addConstraint(Sketcher.Constraint("Radius", 7, Q("0.02 in")))
sketch17.addConstraint(Sketcher.Constraint("Radius", 9, Q("0.035 in")))
sketch17.addConstraint(Sketcher.Constraint("DistanceX", 4, 2, 1, 2, Q("0.1 in")))
sketch17.addConstraint(Sketcher.Constraint("DistanceX", 0, 1, 0, 2, Q("0.068 in")))
sketch17.addConstraint(Sketcher.Constraint("DistanceX", 2, 1, 2, 2, Q("0.313 in")))
sketch17.addConstraint(Sketcher.Constraint("DistanceY", 1, 1, 1, 2, Q("0.087 in")))
sketch17.addConstraint(Sketcher.Constraint("DistanceY", 0, 2, 7, 3, Q("0.09 in")))
sketch17.addConstraint(Sketcher.Constraint("DistanceY", 3, 1, 3, 2, Q("0.0655 in")))
sketch17.addConstraint(Sketcher.Constraint("DistanceX", -1, 1, 7, 3, Q("0.017 in")))
sketch17.addConstraint(Sketcher.Constraint("DistanceY", -1, 1, 7, 3, Q("0.922 in")))
sketch17.addConstraint(Sketcher.Constraint("DistanceY", -1, 1, 9, 3, Q("0.867 in")))
sketch17.addConstraint(Sketcher.Constraint("DistanceY", -1, 1, 11, 1, Q("1.047 in")))
revolution3 = doc.addObject("PartDesign::Revolution", "Revolution002")
body.addObject(revolution3)
revolution3.Profile = sketch17
revolution3.ReferenceAxis = (sketch17, ["Axis0"])
revolution3.Angle = 360

# Sketch on XY plane
sketch18 = doc.addObject("Sketcher::SketchObject", "Sketch017")
body.addObject(sketch18)
sketch18.AttachmentSupport = (doc.XY_Plane, [""])
sketch18.MapMode = "FlatFace"
add_polygon(sketch18, [(-11.1, 63.3), (-11.1, 60.9), (-8.7, 60.9)])  # lines 0-2
sketch18.addGeometry(Part.LineSegment(Vector(-8.7, 60.9, 0), Vector(-11.1, 60.9, 0)), True)  # axis
sketch18.addConstraint(Sketcher.Constraint("Vertical", 0))
sketch18.addConstraint(Sketcher.Constraint("Horizontal", 1))
sketch18.addConstraint(Sketcher.Constraint("Horizontal", 3))
sketch18.addConstraint(Sketcher.Constraint("Coincident", 3, 1, 1, 2))
sketch18.addConstraint(Sketcher.Constraint("Vertical", 2, 2, 3, 2))
sketch18.addConstraint(Sketcher.Constraint("Equal", 3, 0))
sketch18.addConstraint(Sketcher.Constraint("DistanceX", 1, 1, 1, 2, Q("0.095 in")))
sketch18.addConstraint(Sketcher.Constraint("DistanceX", 0, 2, -1, 1, Q("0.4375 in")))
sketch18.addConstraint(Sketcher.Constraint("DistanceY", -1, 1, 0, 2, Q("2.397 in")))
groove7 = doc.addObject("PartDesign::Groove", "Groove006")
body.addObject(groove7)
groove7.Profile = sketch18
groove7.ReferenceAxis = (sketch18, ["Axis0"])
groove7.Angle = 360
doc.recompute()

polarpattern = doc.addObject("PartDesign::PolarPattern", "PolarPattern")
body.addObject(polarpattern)
polarpattern.Originals = [groove7]
polarpattern.Axis = (doc.Y_Axis, [""])
polarpattern.Angle = 360
polarpattern.Occurrences = 6
body.Tip = polarpattern

# Sketch on XZ plane
sketch19 = doc.addObject("Sketcher::SketchObject", "Sketch018")
body.addObject(sketch19)
sketch19.AttachmentSupport = (doc.XZ_Plane, [""])
sketch19.MapMode = "FlatFace"
sketch19.AttachmentOffset = App.Placement(Vector(0, 0, -1.062 * 25.4), App.Rotation())
sketch19.addGeometry(Part.Circle(Vector(11.1, -25.4, 0), Vector(0, 0, 1), 4.4), False)
sketch19.addGeometry(Part.Circle(Vector(-31.8, 0, 0), Vector(0, 0, 1), 4.4), False)
sketch19.addGeometry(Part.Circle(Vector(11.1, 25.4, 0), Vector(0, 0, 1), 4.4), False)
sketch19.addConstraint(Sketcher.Constraint("Equal", 0, 1))
sketch19.addConstraint(Sketcher.Constraint("Equal", 1, 2))
sketch19.addConstraint(Sketcher.Constraint("Symmetric", 0, 3, 2, 3, -1))
sketch19.addConstraint(Sketcher.Constraint("PointOnObject", 1, 3, -1))
sketch19.addConstraint(Sketcher.Constraint("Diameter", 0, Q("0.344 in")))
sketch19.addConstraint(Sketcher.Constraint("DistanceY", 0, 3, -1, 1, Q("1 in")))
sketch19.addConstraint(Sketcher.Constraint("DistanceX", 1, 3, -1, 1, Q("1.25 in")))
sketch19.addConstraint(Sketcher.Constraint("DistanceX", -1, 1, 0, 3, Q("0.438 in")))
doc.recompute()
hole = doc.addObject("PartDesign::Hole", "Hole")
body.addObject(hole)
hole.Profile = sketch19
hole.ThreadType = "None"
hole.Diameter = Q("0.344 in")
hole.DepthType = "Dimension"
hole.Depth = Q("1.062 in")
hole.DrillPoint = "Flat"
hole.HoleCutType = "Counterbore"
hole.HoleCutDiameter = Q("0.551 in")
hole.HoleCutDepth = Q("0.656 in")
hole.Reversed = True

doc.recompute()
